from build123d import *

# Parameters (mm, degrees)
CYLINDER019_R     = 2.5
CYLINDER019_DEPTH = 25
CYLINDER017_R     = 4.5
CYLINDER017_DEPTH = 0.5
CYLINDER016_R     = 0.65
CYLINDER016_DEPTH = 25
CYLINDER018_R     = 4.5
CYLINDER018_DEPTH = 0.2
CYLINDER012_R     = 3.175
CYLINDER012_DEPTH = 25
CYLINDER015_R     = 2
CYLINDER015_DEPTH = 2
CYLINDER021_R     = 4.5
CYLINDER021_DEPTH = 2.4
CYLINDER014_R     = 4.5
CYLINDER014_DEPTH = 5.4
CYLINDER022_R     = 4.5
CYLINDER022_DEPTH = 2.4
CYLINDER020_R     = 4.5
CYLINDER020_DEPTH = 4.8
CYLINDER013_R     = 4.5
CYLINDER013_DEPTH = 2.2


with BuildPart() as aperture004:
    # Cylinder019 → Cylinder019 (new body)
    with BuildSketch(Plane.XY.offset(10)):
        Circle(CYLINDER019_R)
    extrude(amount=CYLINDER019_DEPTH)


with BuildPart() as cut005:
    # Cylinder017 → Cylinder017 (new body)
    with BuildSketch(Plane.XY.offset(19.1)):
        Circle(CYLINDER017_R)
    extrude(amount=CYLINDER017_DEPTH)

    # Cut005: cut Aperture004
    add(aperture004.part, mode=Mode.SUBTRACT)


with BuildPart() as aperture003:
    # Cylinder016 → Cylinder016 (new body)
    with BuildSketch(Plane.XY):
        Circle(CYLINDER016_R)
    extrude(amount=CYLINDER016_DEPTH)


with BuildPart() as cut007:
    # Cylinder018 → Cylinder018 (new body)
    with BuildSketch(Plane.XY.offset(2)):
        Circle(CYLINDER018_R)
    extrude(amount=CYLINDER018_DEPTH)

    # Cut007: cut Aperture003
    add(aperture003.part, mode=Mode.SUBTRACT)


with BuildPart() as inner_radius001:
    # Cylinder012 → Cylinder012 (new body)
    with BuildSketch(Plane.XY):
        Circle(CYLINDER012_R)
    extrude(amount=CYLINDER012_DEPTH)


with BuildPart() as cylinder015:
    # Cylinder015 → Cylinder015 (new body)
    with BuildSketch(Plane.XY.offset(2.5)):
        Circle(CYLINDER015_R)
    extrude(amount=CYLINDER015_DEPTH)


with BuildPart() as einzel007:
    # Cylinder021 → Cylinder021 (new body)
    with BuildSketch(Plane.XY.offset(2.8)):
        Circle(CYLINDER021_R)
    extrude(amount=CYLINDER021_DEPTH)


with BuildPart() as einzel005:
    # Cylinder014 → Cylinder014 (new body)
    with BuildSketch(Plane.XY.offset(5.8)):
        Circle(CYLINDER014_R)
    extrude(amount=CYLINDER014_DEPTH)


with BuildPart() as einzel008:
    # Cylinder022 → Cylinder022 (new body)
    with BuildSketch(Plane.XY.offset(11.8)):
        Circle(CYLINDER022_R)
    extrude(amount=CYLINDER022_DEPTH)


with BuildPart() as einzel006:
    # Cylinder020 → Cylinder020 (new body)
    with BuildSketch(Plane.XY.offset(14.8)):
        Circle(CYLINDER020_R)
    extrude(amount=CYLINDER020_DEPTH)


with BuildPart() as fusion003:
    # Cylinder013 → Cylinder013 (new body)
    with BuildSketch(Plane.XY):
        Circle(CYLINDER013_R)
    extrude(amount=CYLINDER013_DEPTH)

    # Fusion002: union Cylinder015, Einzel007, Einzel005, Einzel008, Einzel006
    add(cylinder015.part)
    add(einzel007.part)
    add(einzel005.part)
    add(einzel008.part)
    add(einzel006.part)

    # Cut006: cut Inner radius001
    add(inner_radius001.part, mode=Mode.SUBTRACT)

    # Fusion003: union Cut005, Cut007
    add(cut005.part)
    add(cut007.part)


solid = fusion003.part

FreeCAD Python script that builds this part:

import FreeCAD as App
import Part
import Sketcher

doc = App.newDocument("Part")
body = doc.addObject("PartDesign::Body", "Body")

sketch1 = body.newObject("Sketcher::SketchObject", "Sketch")
sketch1.AttachmentSupport = (doc.getObject("XY_Plane"), [""])
sketch1.MapMode = "FlatFace"
sketch1.AttachmentOffset = App.Placement(App.Vector(0, 0, 10), App.Rotation())
sketch1.addGeometry(Part.Circle(App.Vector(0, 0, 0), App.Vector(0, 0, 1), 2.5), False)
sketch1.addConstraint(Sketcher.Constraint("Coincident", 0, 3, -1, 1))
sketch1.addConstraint(Sketcher.Constraint("Diameter", 0, 5.0))
pad1 = body.newObject("PartDesign::Pad", "Pad")
pad1.Profile = sketch1
pad1.Length = 25
body2 = doc.addObject("PartDesign::Body", "Body001")

sketch2 = body2.newObject("Sketcher::SketchObject", "Sketch001")
sketch2.AttachmentSupport = (doc.getObject("XY_Plane001"), [""])
sketch2.MapMode = "FlatFace"
sketch2.AttachmentOffset = App.Placement(App.Vector(0, 0, 19.1), App.Rotation())
sketch2.addGeometry(Part.Circle(App.Vector(0, 0, 0), App.Vector(0, 0, 1), 4.5), False)
sketch2.addConstraint(Sketcher.Constraint("Coincident", 0, 3, -1, 1))
sketch2.addConstraint(Sketcher.Constraint("Diameter", 0, 9.0))
pad2 = body2.newObject("PartDesign::Pad", "Pad001")
pad2.Profile = sketch2
pad2.Length = 0.5
doc.recompute()

boolean = body2.newObject("PartDesign::Boolean", "Boolean")
boolean.Type = "Cut"
boolean.addObjects([body])
body3 = doc.addObject("PartDesign::Body", "Body002")

sketch3 = body3.newObject("Sketcher::SketchObject", "Sketch002")
sketch3.AttachmentSupport = (doc.getObject("XY_Plane002"), [""])
sketch3.MapMode = "FlatFace"
sketch3.addGeometry(Part.Circle(App.Vector(0, 0, 0), App.Vector(0, 0, 1), 0.7), False)
sketch3.addConstraint(Sketcher.Constraint("Coincident", 0, 3, -1, 1))
sketch3.addConstraint(Sketcher.Constraint("Diameter", 0, 1.3))
pad3 = body3.newObject("PartDesign::Pad", "Pad002")
pad3.Profile = sketch3
pad3.Length = 25
body4 = doc.addObject("PartDesign::Body", "Body003")

sketch4 = body4.newObject("Sketcher::SketchObject", "Sketch003")
sketch4.AttachmentSupport = (doc.getObject("XY_Plane003"), [""])
sketch4.MapMode = "FlatFace"
sketch4.AttachmentOffset = App.Placement(App.Vector(0, 0, 2), App.Rotation())
sketch4.addGeometry(Part.Circle(App.Vector(0, 0, 0), App.Vector(0, 0, 1), 4.5), False)
sketch4.addConstraint(Sketcher.Constraint("Coincident", 0, 3, -1, 1))
sketch4.addConstraint(Sketcher.Constraint("Diameter", 0, 9.0))
pad4 = body4.newObject("PartDesign::Pad", "Pad003")
pad4.Profile = sketch4
pad4.Length = 0.2
doc.recompute()

boolean2 = body4.newObject("PartDesign::Boolean", "Boolean001")
boolean2.Type = "Cut"
boolean2.addObjects([body3])
body5 = doc.addObject("PartDesign::Body", "Body004")

sketch5 = body5.newObject("Sketcher::SketchObject", "Sketch004")
sketch5.AttachmentSupport = (doc.getObject("XY_Plane004"), [""])
sketch5.MapMode = "FlatFace"
sketch5.addGeometry(Part.Circle(App.Vector(0, 0, 0), App.Vector(0, 0, 1), 3.2), False)
sketch5.addConstraint(Sketcher.Constraint("Coincident", 0, 3, -1, 1))
sketch5.addConstraint(Sketcher.Constraint("Diameter", 0, 6.35))
pad5 = body5.newObject("PartDesign::Pad", "Pad004")
pad5.Profile = sketch5
pad5.Length = 25
body6 = doc.addObject("PartDesign::Body", "Body005")

sketch6 = body6.newObject("Sketcher::SketchObject", "Sketch005")
sketch6.AttachmentSupport = (doc.getObject("XY_Plane005"), [""])
sketch6.MapMode = "FlatFace"
sketch6.AttachmentOffset = App.Placement(App.Vector(0, 0, 2.5), App.Rotation())
sketch6.addGeometry(Part.Circle(App.Vector(0, 0, 0), App.Vector(0, 0, 1), 2), False)
sketch6.addConstraint(Sketcher.Constraint("Coincident", 0, 3, -1, 1))
sketch6.addConstraint(Sketcher.Constraint("Diameter", 0, 4.0))
pad6 = body6.newObject("PartDesign::Pad", "Pad005")
pad6.Profile = sketch6
pad6.Length = 2
body7 = doc.addObject("PartDesign::Body", "Body006")

sketch7 = body7.newObject("Sketcher::SketchObject", "Sketch006")
sketch7.AttachmentSupport = (doc.getObject("XY_Plane006"), [""])
sketch7.MapMode = "FlatFace"
sketch7.AttachmentOffset = App.Placement(App.Vector(0, 0, 2.8), App.Rotation())
sketch7.addGeometry(Part.Circle(App.Vector(0, 0, 0), App.Vector(0, 0, 1), 4.5), False)
sketch7.addConstraint(Sketcher.Constraint("Coincident", 0, 3, -1, 1))
sketch7.addConstraint(Sketcher.Constraint("Diameter", 0, 9.0))
pad7 = body7.newObject("PartDesign::Pad", "Pad006")
pad7.Profile = sketch7
pad7.Length = 2.4
body8 = doc.addObject("PartDesign::Body", "Body007")

sketch8 = body8.newObject("Sketcher::SketchObject", "Sketch007")
sketch8.AttachmentSupport = (doc.getObject("XY_Plane007"), [""])
sketch8.MapMode = "FlatFace"
sketch8.AttachmentOffset = App.Placement(App.Vector(0, 0, 5.8), App.Rotation())
sketch8.addGeometry(Part.Circle(App.Vector(0, 0, 0), App.Vector(0, 0, 1), 4.5), False)
sketch8.addConstraint(Sketcher.Constraint("Coincident", 0, 3, -1, 1))
sketch8.addConstraint(Sketcher.Constraint("Diameter", 0, 9.0))
pad8 = body8.newObject("PartDesign::Pad", "Pad007")
pad8.Profile = sketch8
pad8.Length = 5.4
body9 = doc.addObject("PartDesign::Body", "Body008")

sketch9 = body9.newObject("Sketcher::SketchObject", "Sketch008")
sketch9.AttachmentSupport = (doc.getObject("XY_Plane008"), [""])
sketch9.MapMode = "FlatFace"
sketch9.AttachmentOffset = App.Placement(App.Vector(0, 0, 11.8), App.Rotation())
sketch9.addGeometry(Part.Circle(App.Vector(0, 0, 0), App.Vector(0, 0, 1), 4.5), False)
sketch9.addConstraint(Sketcher.Constraint("Coincident", 0, 3, -1, 1))
sketch9.addConstraint(Sketcher.Constraint("Diameter", 0, 9.0))
pad9 = body9.newObject("PartDesign::Pad", "Pad008")
pad9.Profile = sketch9
pad9.Length = 2.4
body10 = doc.addObject("PartDesign::Body", "Body009")

sketch10 = body10.newObject("Sketcher::SketchObject", "Sketch009")
sketch10.AttachmentSupport = (doc.getObject("XY_Plane009"), [""])
sketch10.MapMode = "FlatFace"
sketch10.AttachmentOffset = App.Placement(App.Vector(0, 0, 14.8), App.Rotation())
sketch10.addGeometry(Part.Circle(App.Vector(0, 0, 0), App.Vector(0, 0, 1), 4.5), False)
sketch10.addConstraint(Sketcher.Constraint("Coincident", 0, 3, -1, 1))
sketch10.addConstraint(Sketcher.Constraint("Diameter", 0, 9.0))
pad10 = body10.newObject("PartDesign::Pad", "Pad009")
pad10.Profile = sketch10
pad10.Length = 4.8
body11 = doc.addObject("PartDesign::Body", "Body010")
body11.AllowCompound = True

sketch11 = body11.newObject("Sketcher::SketchObject", "Sketch010")
sketch11.AttachmentSupport = (doc.getObject("XY_Plane010"), [""])
sketch11.MapMode = "FlatFace"
sketch11.addGeometry(Part.Circle(App.Vector(0, 0, 0), App.Vector(0, 0, 1), 4.5), False)
sketch11.addConstraint(Sketcher.Constraint("Coincident", 0, 3, -1, 1))
sketch11.addConstraint(Sketcher.Constraint("Diameter", 0, 9.0))
pad11 = body11.newObject("PartDesign::Pad", "Pad010")
pad11.Profile = sketch11
pad11.Length = 2.2
doc.recompute()

boolean3 = body11.newObject("PartDesign::Boolean", "Boolean002")
boolean3.Type = "Fuse"
boolean3.addObjects([body6])
doc.recompute()

boolean4 = body11.newObject("PartDesign::Boolean", "Boolean003")
boolean4.Type = "Fuse"
boolean4.addObjects([body7])
doc.recompute()

boolean5 = body11.newObject("PartDesign::Boolean", "Boolean004")
boolean5.Type = "Fuse"
boolean5.addObjects([body8])
doc.recompute()

boolean6 = body11.newObject("PartDesign::Boolean", "Boolean005")
boolean6.Type = "Fuse"
boolean6.addObjects([body9])
doc.recompute()

boolean7 = body11.newObject("PartDesign::Boolean", "Boolean006")
boolean7.Type = "Fuse"
boolean7.addObjects([body10])
doc.recompute()

boolean8 = body11.newObject("PartDesign::Boolean", "Boolean007")
boolean8.Type = "Cut"
boolean8.addObjects([body5])
doc.recompute()

boolean9 = body11.newObject("PartDesign::Boolean", "Boolean008")
boolean9.Type = "Fuse"
boolean9.addObjects([body2])
doc.recompute()

boolean10 = body11.newObject("PartDesign::Boolean", "Boolean009")
boolean10.Type = "Fuse"
boolean10.addObjects([body4])

doc.recompute()
